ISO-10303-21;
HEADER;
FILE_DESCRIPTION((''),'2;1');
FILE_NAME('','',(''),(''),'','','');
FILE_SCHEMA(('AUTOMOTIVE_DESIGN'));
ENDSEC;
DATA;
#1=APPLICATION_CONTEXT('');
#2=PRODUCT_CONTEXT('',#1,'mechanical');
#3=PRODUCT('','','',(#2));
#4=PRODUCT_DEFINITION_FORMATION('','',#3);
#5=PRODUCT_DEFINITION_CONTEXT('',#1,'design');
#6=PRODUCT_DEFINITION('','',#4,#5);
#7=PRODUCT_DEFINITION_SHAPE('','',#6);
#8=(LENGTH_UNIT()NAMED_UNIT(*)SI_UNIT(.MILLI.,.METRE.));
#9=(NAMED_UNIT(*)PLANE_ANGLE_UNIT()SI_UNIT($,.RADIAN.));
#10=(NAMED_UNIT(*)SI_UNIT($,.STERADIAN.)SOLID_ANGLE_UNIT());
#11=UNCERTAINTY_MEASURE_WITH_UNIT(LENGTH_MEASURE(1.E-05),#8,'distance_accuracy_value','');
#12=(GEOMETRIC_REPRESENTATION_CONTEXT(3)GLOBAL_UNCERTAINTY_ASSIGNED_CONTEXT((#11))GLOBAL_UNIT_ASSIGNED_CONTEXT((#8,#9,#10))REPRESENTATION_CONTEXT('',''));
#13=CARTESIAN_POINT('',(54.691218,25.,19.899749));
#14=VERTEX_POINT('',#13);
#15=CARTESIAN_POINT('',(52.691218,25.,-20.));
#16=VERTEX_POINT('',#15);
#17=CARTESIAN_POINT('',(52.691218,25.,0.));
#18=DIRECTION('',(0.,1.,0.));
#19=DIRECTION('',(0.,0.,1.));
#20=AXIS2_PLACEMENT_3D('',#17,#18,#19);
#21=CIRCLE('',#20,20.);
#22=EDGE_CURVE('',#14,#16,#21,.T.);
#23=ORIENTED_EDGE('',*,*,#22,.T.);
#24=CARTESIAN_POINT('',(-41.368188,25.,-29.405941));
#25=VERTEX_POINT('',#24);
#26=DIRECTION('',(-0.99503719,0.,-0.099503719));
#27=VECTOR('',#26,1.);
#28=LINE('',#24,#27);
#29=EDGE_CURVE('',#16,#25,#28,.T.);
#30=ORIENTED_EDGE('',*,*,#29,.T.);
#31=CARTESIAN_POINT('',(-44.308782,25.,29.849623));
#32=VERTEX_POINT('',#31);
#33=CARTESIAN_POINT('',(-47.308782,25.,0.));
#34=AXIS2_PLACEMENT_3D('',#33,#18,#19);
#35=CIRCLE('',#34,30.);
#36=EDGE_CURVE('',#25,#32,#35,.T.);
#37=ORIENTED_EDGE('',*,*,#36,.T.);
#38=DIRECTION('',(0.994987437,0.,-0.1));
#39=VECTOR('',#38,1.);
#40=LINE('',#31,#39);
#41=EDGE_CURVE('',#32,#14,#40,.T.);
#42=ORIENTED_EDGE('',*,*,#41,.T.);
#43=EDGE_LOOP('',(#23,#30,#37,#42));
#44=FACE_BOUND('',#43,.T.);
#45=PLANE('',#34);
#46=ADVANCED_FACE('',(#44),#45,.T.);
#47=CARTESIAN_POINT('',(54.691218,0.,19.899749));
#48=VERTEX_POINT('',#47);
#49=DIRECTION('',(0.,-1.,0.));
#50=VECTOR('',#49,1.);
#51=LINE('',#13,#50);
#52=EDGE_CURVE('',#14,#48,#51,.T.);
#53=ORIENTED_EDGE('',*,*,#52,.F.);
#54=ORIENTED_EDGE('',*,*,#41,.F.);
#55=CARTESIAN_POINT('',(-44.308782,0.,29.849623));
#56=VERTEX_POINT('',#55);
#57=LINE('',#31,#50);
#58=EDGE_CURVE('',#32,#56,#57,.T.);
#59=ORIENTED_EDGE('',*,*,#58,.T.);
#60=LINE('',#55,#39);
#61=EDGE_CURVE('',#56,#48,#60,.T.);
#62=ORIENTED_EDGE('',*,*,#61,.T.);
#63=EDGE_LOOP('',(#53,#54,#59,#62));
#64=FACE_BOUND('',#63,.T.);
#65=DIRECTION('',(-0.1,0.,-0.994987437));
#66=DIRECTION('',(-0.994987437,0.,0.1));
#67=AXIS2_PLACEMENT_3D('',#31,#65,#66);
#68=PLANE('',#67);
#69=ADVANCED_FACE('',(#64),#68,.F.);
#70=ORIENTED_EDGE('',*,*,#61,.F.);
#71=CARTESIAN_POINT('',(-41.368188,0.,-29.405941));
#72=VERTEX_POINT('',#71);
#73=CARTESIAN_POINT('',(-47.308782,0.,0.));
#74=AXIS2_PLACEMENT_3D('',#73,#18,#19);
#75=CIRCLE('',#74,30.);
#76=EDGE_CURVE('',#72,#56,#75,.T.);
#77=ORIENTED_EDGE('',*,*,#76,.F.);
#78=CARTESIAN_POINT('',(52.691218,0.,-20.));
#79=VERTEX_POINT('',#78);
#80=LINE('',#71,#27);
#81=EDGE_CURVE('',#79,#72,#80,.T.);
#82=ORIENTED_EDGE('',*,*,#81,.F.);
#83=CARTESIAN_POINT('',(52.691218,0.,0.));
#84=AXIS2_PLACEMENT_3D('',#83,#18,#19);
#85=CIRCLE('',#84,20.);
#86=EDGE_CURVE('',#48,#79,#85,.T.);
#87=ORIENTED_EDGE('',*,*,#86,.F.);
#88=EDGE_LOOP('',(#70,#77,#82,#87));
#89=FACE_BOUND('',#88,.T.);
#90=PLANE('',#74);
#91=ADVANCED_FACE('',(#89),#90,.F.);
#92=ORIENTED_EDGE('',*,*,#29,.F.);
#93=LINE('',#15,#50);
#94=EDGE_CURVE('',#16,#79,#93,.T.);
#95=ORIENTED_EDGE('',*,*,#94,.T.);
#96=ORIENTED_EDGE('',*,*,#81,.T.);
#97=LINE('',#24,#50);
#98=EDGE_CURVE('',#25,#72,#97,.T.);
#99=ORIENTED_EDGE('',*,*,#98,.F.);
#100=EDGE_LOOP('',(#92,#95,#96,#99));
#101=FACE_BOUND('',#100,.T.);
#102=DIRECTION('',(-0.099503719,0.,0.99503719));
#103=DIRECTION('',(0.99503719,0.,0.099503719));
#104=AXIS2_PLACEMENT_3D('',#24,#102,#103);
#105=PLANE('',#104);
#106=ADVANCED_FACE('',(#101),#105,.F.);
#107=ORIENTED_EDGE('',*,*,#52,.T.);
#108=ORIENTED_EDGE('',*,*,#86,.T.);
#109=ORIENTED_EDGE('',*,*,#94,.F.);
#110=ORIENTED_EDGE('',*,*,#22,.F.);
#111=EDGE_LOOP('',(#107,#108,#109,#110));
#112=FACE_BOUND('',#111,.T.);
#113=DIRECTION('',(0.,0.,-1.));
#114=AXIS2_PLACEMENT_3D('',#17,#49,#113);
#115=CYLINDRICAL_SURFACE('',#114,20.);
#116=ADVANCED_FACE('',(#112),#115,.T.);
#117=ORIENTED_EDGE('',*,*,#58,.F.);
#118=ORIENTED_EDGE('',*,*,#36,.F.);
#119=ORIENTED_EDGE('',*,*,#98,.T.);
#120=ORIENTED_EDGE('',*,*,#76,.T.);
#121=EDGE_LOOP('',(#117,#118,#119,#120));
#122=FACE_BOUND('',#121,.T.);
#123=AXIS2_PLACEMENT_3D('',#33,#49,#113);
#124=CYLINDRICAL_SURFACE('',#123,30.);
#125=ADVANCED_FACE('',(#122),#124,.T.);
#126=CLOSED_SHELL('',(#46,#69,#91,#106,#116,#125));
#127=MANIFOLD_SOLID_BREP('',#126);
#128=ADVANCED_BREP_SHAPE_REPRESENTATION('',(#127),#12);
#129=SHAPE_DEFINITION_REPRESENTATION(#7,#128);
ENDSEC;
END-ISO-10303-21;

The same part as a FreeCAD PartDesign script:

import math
import FreeCAD as App
import Part
import Sketcher

V = App.Vector
Q = App.Units.Quantity

doc = App.newDocument("Part")
body = doc.addObject("PartDesign::Body", "Body")

sketch1 = doc.addObject("Sketcher::SketchObject", "Sketch")
body.addObject(sketch1)
sketch1.AttachmentSupport = (doc.XZ_Plane, [""])
sketch1.MapMode = "FlatFace"
sketch1.addGeometry([
    Part.LineSegment(V(53, -20, 0), V(-41, -29, 0)),
    Part.ArcOfCircle(Part.Circle(V(-47, 0, 0), V(0, 0, 1), 30), math.radians(84), math.radians(281)),
    Part.LineSegment(V(-44, 30, 0), V(55, 20, 0)),
    Part.ArcOfCircle(Part.Circle(V(53, 0, 0), V(0, 0, 1), 20), math.radians(-90), math.radians(84)),
], False)
sketch1.addConstraint([
    Sketcher.Constraint("Coincident", 0, 2, 1, 2),
    Sketcher.Constraint("Tangent", 1, 1, 2, 1),
    Sketcher.Constraint("Tangent", 2, 2, 3, 2),
    Sketcher.Constraint("Coincident", 3, 1, 0, 1),
    Sketcher.Constraint("PointOnObject", 1, 3, -1),
    Sketcher.Constraint("PointOnObject", 3, 3, -1),
    Sketcher.Constraint("Radius", 1, Q("30 mm")),
    Sketcher.Constraint("Radius", 3, Q("20 mm")),
    Sketcher.Constraint("DistanceX", 1, 3, 3, 3, Q("100 mm")),
    Sketcher.Constraint("DistanceX", 3, 1, 2, 2, Q("2 mm")),
    Sketcher.Constraint("DistanceX", 1, 3, -1, 1, Q("47.308782 mm")),
    Sketcher.Constraint("DistanceY", 0, 2, -1, 1, Q("29.405941 mm")),
])
pad1 = doc.addObject("PartDesign::Pad", "Pad")
body.addObject(pad1)
pad1.Profile = sketch1
pad1.Length = 25
pad1.Reversed = True

doc.recompute()
